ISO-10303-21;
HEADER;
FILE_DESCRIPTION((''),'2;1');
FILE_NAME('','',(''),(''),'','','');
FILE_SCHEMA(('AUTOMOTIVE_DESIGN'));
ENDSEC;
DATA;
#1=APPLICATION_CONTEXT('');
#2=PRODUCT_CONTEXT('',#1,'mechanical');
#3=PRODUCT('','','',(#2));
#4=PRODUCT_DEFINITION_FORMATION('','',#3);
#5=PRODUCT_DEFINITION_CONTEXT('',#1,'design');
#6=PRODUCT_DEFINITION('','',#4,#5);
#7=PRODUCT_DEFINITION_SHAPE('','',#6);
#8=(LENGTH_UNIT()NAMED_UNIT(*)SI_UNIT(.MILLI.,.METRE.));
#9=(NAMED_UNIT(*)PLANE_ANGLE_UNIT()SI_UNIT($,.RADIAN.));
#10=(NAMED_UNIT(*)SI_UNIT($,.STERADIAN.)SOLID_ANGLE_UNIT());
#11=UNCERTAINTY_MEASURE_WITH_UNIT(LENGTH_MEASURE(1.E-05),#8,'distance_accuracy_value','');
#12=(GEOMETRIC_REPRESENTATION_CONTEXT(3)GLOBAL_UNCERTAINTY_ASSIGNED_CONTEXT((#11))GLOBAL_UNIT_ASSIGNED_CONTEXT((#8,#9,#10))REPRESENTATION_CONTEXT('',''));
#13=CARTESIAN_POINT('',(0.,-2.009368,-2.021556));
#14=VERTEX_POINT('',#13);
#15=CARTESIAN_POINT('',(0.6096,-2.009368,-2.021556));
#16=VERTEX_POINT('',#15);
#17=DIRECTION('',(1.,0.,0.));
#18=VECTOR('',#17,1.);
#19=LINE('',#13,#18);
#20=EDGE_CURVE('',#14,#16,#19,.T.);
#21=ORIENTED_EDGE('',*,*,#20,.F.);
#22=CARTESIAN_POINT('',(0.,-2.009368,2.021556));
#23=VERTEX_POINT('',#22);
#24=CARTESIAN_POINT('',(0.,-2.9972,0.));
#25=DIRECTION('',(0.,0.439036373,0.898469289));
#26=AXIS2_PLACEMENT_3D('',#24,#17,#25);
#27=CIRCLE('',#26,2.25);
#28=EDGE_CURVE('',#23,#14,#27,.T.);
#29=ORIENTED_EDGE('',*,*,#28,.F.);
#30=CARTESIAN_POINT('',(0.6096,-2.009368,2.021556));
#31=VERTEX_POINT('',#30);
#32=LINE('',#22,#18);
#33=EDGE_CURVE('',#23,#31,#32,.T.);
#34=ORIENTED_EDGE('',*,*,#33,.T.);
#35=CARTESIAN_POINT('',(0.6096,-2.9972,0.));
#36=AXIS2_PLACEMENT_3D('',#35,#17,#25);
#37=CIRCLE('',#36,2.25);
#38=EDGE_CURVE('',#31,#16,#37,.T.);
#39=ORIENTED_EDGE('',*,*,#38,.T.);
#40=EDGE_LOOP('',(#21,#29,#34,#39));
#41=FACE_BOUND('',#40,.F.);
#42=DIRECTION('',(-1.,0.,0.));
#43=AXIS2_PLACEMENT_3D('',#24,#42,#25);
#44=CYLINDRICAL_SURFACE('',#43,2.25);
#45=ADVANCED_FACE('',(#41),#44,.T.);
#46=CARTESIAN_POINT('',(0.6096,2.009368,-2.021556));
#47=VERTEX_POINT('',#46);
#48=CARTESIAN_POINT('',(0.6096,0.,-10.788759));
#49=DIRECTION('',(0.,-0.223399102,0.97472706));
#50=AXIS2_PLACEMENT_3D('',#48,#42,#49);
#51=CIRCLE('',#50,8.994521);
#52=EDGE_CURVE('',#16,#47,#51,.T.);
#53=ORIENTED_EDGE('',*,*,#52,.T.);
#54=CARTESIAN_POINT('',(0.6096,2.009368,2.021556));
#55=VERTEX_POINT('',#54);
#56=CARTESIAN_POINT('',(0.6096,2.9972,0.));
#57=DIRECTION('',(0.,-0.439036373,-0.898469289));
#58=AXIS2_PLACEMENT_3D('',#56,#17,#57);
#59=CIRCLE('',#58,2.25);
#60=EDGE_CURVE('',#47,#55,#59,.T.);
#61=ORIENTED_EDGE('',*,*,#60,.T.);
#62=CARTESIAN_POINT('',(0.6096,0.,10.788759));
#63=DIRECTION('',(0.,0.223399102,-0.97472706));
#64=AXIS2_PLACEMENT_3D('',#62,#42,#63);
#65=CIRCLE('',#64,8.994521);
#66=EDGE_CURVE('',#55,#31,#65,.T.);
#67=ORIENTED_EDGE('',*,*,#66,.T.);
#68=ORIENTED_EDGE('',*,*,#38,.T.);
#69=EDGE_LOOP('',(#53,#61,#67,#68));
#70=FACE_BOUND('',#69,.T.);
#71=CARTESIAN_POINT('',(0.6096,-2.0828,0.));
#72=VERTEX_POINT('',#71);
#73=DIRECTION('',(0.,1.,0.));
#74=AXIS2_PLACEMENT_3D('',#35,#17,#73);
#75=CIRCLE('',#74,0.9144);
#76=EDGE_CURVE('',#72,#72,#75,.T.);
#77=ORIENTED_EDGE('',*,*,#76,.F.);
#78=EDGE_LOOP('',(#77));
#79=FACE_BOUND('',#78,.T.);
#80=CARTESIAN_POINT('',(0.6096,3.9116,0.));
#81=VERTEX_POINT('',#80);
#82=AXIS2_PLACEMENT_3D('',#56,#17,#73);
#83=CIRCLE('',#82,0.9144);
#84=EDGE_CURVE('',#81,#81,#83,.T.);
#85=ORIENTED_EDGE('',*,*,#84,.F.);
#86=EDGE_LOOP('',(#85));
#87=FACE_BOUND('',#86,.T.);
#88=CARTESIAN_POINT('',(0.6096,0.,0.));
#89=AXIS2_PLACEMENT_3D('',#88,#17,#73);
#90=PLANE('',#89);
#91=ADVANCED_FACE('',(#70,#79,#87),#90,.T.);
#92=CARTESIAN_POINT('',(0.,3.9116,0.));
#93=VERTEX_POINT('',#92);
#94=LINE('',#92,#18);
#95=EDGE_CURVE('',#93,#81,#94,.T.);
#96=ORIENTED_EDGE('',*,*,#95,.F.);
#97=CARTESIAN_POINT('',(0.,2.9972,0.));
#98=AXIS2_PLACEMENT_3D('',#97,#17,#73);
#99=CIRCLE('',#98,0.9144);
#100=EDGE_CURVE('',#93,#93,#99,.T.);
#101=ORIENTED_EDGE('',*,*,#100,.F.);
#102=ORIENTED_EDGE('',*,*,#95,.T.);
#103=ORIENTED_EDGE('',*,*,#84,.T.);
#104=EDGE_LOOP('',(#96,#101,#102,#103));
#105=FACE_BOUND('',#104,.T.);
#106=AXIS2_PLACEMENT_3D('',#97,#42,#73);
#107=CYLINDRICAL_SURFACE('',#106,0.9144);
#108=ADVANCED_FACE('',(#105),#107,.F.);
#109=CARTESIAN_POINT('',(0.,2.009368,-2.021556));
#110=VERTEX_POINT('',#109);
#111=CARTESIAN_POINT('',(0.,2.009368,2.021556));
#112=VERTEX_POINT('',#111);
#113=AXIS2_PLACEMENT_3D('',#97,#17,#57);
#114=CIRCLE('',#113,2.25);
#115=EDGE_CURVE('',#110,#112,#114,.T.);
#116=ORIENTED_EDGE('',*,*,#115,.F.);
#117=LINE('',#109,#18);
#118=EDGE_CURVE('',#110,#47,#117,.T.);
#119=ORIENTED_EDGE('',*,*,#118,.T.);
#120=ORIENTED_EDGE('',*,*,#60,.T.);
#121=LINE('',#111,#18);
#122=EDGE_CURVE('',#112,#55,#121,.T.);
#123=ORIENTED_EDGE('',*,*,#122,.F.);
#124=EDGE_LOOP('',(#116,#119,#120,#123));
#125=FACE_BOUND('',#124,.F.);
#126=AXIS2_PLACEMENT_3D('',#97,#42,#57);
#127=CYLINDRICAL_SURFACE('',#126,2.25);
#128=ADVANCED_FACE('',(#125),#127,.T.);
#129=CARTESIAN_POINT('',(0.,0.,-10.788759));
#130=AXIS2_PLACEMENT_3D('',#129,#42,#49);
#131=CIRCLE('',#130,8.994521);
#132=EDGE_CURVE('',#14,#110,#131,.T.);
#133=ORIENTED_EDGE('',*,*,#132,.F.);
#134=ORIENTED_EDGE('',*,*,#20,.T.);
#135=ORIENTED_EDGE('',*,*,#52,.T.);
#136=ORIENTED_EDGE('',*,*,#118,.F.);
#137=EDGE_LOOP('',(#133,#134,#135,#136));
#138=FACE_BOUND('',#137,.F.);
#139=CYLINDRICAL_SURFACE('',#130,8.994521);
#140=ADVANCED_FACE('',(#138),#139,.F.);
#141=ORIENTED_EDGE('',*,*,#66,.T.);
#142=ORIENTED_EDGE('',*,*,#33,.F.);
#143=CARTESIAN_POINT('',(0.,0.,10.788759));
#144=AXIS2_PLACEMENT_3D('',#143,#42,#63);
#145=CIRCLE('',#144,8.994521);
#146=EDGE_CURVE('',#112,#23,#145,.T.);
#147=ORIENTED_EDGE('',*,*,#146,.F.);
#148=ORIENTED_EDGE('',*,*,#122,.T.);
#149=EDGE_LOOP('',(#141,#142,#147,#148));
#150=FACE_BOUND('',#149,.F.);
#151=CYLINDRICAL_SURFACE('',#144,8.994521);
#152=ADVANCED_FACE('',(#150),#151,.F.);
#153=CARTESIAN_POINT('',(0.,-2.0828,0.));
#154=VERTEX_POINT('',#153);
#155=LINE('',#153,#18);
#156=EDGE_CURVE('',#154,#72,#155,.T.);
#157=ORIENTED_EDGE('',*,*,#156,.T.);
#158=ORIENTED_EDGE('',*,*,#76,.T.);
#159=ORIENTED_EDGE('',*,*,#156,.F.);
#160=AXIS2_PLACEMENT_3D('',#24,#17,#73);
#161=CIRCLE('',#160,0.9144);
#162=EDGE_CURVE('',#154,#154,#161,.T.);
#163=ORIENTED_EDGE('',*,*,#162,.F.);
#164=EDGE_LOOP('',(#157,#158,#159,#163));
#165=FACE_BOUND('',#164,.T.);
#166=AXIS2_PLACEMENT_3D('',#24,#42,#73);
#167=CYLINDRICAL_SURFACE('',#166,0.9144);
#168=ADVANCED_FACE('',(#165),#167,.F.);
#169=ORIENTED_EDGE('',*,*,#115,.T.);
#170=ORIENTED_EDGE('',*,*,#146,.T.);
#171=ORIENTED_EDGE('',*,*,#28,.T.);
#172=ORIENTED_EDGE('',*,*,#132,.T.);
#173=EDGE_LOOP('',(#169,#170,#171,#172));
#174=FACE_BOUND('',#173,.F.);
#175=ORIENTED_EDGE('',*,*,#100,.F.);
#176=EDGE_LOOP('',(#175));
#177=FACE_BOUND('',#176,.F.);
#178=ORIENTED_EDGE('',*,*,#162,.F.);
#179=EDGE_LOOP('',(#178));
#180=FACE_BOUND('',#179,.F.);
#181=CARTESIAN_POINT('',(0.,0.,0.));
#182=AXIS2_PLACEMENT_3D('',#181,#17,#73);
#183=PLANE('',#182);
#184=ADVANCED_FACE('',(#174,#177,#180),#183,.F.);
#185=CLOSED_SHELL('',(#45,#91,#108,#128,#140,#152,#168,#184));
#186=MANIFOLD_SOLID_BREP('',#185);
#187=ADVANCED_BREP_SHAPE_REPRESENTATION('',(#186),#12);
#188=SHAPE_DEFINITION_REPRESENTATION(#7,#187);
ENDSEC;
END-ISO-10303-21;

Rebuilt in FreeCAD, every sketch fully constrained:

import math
import FreeCAD as App
import Part
import Sketcher
Q = App.Units.Quantity

doc = App.newDocument("Part")
body = doc.addObject("PartDesign::Body", "Body")

# Sketch on YZ plane
sketch1 = body.newObject("Sketcher::SketchObject", "Sketch")
sketch1.AttachmentSupport = (doc.getObject("YZ_Plane"), [""])
sketch1.MapMode = "FlatFace"
sketch1.addGeometry(Part.ArcOfCircle(Part.Circle(App.Vector(0, 10.8, 0), App.Vector(0, 0, 1), 9), math.radians(-103), math.radians(-77)), False)
sketch1.addGeometry(Part.ArcOfCircle(Part.Circle(App.Vector(-3, 0, 0), App.Vector(0, 0, 1), 2.3), math.radians(64), math.radians(296)), False)
sketch1.addGeometry(Part.ArcOfCircle(Part.Circle(App.Vector(0, -10.8, 0), App.Vector(0, 0, 1), 9), math.radians(77), math.radians(103)), False)
sketch1.addGeometry(Part.ArcOfCircle(Part.Circle(App.Vector(3, 0, 0), App.Vector(0, 0, 1), 2.3), math.radians(-116), math.radians(116)), False)
sketch1.addGeometry(Part.Circle(App.Vector(-3, 0, 0), App.Vector(0, 0, 1), 0.9), False)
sketch1.addGeometry(Part.Circle(App.Vector(3, 0, 0), App.Vector(0, 0, 1), 0.9), False)
sketch1.addConstraint(Sketcher.Constraint("Coincident", 0, 1, 1, 1))
sketch1.addConstraint(Sketcher.Constraint("Coincident", 1, 2, 2, 2))
sketch1.addConstraint(Sketcher.Constraint("Coincident", 2, 1, 3, 1))
sketch1.addConstraint(Sketcher.Constraint("Coincident", 3, 2, 0, 2))
sketch1.addConstraint(Sketcher.Constraint("Coincident", 4, 3, 1, 3))
sketch1.addConstraint(Sketcher.Constraint("Coincident", 5, 3, 3, 3))
sketch1.addConstraint(Sketcher.Constraint("Equal", 0, 2))
sketch1.addConstraint(Sketcher.Constraint("Equal", 1, 3))
sketch1.addConstraint(Sketcher.Constraint("Equal", 4, 5))
sketch1.addConstraint(Sketcher.Constraint("Symmetric", 0, 3, 2, 3, -1, 1))
sketch1.addConstraint(Sketcher.Constraint("Symmetric", 1, 3, 3, 3, -1, 1))
sketch1.addConstraint(Sketcher.Constraint("Symmetric", 1, 2, 2, 1, -2))
sketch1.addConstraint(Sketcher.Constraint("Diameter", 4, Q("0.072 in")))
sketch1.addConstraint(Sketcher.Constraint("Radius", 1, Q("2.25 mm")))
sketch1.addConstraint(Sketcher.Constraint("DistanceX", 1, 3, -1, 1, Q("0.118 in")))
sketch1.addConstraint(Sketcher.Constraint("Radius", 0, Q("8.994521 mm")))
sketch1.addConstraint(Sketcher.Constraint("DistanceY", -1, 1, 0, 3, Q("10.788759 mm")))
pad1 = body.newObject("PartDesign::Pad", "Pad")
pad1.Profile = sketch1
pad1.Length = Q("0.024 in")

doc.recompute()
